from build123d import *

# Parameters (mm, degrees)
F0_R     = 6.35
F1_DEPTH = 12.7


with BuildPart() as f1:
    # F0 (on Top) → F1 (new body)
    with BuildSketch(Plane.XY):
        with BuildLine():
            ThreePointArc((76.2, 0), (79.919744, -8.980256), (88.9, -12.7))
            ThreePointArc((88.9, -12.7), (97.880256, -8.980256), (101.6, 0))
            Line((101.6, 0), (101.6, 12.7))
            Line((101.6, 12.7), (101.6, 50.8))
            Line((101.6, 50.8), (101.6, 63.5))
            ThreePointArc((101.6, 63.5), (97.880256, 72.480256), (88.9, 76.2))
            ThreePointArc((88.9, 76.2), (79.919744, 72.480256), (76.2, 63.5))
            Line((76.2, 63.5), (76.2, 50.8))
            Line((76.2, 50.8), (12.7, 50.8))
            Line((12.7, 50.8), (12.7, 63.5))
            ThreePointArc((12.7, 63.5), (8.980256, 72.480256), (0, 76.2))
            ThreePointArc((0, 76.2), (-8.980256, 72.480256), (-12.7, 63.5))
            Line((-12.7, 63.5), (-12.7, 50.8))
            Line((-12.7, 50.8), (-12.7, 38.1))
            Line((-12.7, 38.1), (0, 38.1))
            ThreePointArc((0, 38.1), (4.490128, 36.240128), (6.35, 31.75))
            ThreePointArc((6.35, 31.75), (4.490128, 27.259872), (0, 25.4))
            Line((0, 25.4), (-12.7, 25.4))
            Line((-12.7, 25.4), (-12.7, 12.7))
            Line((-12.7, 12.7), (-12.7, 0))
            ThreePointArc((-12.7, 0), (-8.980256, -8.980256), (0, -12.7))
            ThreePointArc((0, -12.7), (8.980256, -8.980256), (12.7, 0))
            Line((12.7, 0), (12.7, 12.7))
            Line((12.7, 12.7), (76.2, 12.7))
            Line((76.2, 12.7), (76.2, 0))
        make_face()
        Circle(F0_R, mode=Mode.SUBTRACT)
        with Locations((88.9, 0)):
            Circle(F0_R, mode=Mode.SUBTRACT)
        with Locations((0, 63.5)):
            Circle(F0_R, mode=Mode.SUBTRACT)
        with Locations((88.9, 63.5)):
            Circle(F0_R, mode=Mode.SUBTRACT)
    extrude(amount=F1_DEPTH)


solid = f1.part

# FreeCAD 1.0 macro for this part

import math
import FreeCAD as App
import Part
import Sketcher
from FreeCAD import Vector
Q = App.Units.Quantity

doc = App.newDocument("Part")
body = doc.addObject("PartDesign::Body", "Body")

sketch1 = doc.addObject("Sketcher::SketchObject", "Sketch")
body.addObject(sketch1)
sketch1.AttachmentSupport = (doc.XY_Plane, [""])
sketch1.MapMode = "FlatFace"
sketch1.addGeometry([
    Part.ArcOfCircle(Part.Circle(Vector(89, 0, 0), Vector(0, 0, 1), 13), math.radians(-180), math.radians(-90)),
    Part.ArcOfCircle(Part.Circle(Vector(89, 0, 0), Vector(0, 0, 1), 13), math.radians(-90), math.radians(0)),
    Part.LineSegment(Vector(102, 0, 0), Vector(102, 64, 0)),
    Part.ArcOfCircle(Part.Circle(Vector(89, 63, 0), Vector(0, 0, 1), 13), math.radians(0), math.radians(90)),
    Part.ArcOfCircle(Part.Circle(Vector(89, 63, 0), Vector(0, 0, 1), 13), math.radians(90), math.radians(180)),
    Part.LineSegment(Vector(76, 64, 0), Vector(76, 51, 0)),
    Part.LineSegment(Vector(76, 51, 0), Vector(13, 51, 0)),
    Part.LineSegment(Vector(13, 51, 0), Vector(13, 64, 0)),
    Part.ArcOfCircle(Part.Circle(Vector(0, 63, 0), Vector(0, 0, 1), 13), math.radians(0), math.radians(90)),
    Part.ArcOfCircle(Part.Circle(Vector(0, 63, 0), Vector(0, 0, 1), 13), math.radians(90), math.radians(180)),
    Part.LineSegment(Vector(-13, 64, 0), Vector(-13, 38, 0)),
    Part.LineSegment(Vector(-13, 38, 0), Vector(0, 38, 0)),
    Part.ArcOfCircle(Part.Circle(Vector(0, 32, 0), Vector(0, 0, 1), 6), math.radians(0), math.radians(90)),
    Part.ArcOfCircle(Part.Circle(Vector(0, 32, 0), Vector(0, 0, 1), 6), math.radians(-90), math.radians(0)),
    Part.LineSegment(Vector(0, 25, 0), Vector(-13, 25, 0)),
    Part.LineSegment(Vector(-13, 25, 0), Vector(-13, 0, 0)),
    Part.ArcOfCircle(Part.Circle(Vector(0, 0, 0), Vector(0, 0, 1), 13), math.radians(-180), math.radians(-90)),
    Part.ArcOfCircle(Part.Circle(Vector(0, 0, 0), Vector(0, 0, 1), 13), math.radians(-90), math.radians(0)),
    Part.LineSegment(Vector(13, 0, 0), Vector(13, 13, 0)),
    Part.LineSegment(Vector(13, 13, 0), Vector(76, 13, 0)),
    Part.LineSegment(Vector(76, 13, 0), Vector(76, 0, 0)),
    Part.Circle(Vector(0, 0, 0), Vector(0, 0, 1), 6),
    Part.Circle(Vector(89, 0, 0), Vector(0, 0, 1), 6),
    Part.Circle(Vector(0, 64, 0), Vector(0, 0, 1), 6),
    Part.Circle(Vector(89, 64, 0), Vector(0, 0, 1), 6),
], False)
sketch1.addConstraint([
    Sketcher.Constraint("Tangent", 0, 2, 1, 1),
    Sketcher.Constraint("Tangent", 1, 2, 2, 1),
    Sketcher.Constraint("Tangent", 2, 2, 3, 1),
    Sketcher.Constraint("Tangent", 3, 2, 4, 1),
    Sketcher.Constraint("Tangent", 4, 2, 5, 1),
    Sketcher.Constraint("Coincident", 5, 2, 6, 1),
    Sketcher.Constraint("Coincident", 6, 2, 7, 1),
    Sketcher.Constraint("Tangent", 7, 2, 8, 1),
    Sketcher.Constraint("Tangent", 8, 2, 9, 1),
    Sketcher.Constraint("Tangent", 9, 2, 10, 1),
    Sketcher.Constraint("Coincident", 10, 2, 11, 1),
    Sketcher.Constraint("Tangent", 11, 2, 12, 2),
    Sketcher.Constraint("Tangent", 12, 1, 13, 2),
    Sketcher.Constraint("Tangent", 13, 1, 14, 1),
    Sketcher.Constraint("Coincident", 14, 2, 15, 1),
    Sketcher.Constraint("Tangent", 15, 2, 16, 1),
    Sketcher.Constraint("Tangent", 16, 2, 17, 1),
    Sketcher.Constraint("Tangent", 17, 2, 18, 1),
    Sketcher.Constraint("Coincident", 18, 2, 19, 1),
    Sketcher.Constraint("Coincident", 19, 2, 20, 1),
    Sketcher.Constraint("Tangent", 20, 2, 0, 1),
    Sketcher.Constraint("Vertical", 2),
    Sketcher.Constraint("Vertical", 5),
    Sketcher.Constraint("Horizontal", 6),
    Sketcher.Constraint("Vertical", 7),
    Sketcher.Constraint("Vertical", 10),
    Sketcher.Constraint("Horizontal", 11),
    Sketcher.Constraint("Horizontal", 14),
    Sketcher.Constraint("Vertical", 15),
    Sketcher.Constraint("Vertical", 18),
    Sketcher.Constraint("Horizontal", 19),
    Sketcher.Constraint("Vertical", 20),
    Sketcher.Constraint("Coincident", 16, 3, -1, 1),
    Sketcher.Constraint("Coincident", 21, 3, -1, 1),
    Sketcher.Constraint("Coincident", 22, 3, 0, 3),
    Sketcher.Constraint("Coincident", 23, 3, 8, 3),
    Sketcher.Constraint("Coincident", 24, 3, 3, 3),
    Sketcher.Constraint("Equal", 0, 1),
    Sketcher.Constraint("Equal", 1, 3),
    Sketcher.Constraint("Equal", 3, 4),
    Sketcher.Constraint("Equal", 4, 8),
    Sketcher.Constraint("Equal", 8, 9),
    Sketcher.Constraint("Equal", 12, 13),
    Sketcher.Constraint("Equal", 9, 16),
    Sketcher.Constraint("Equal", 16, 17),
    Sketcher.Constraint("Equal", 13, 21),
    Sketcher.Constraint("Equal", 21, 22),
    Sketcher.Constraint("Equal", 22, 23),
    Sketcher.Constraint("Equal", 23, 24),
    Sketcher.Constraint("PointOnObject", 0, 3, -1),
    Sketcher.Constraint("PointOnObject", 8, 3, -2),
    Sketcher.Constraint("PointOnObject", 12, 3, -2),
    Sketcher.Constraint("PointOnObject", 8, 2, -2),
    Sketcher.Constraint("PointOnObject", 16, 2, -2),
    Sketcher.Constraint("Horizontal", 4, 3, 8, 3),
    Sketcher.Constraint("Horizontal", 13, 3, 12, 1),
    Sketcher.Constraint("Vertical", 24, 3, 0, 2),
    Sketcher.Constraint("Vertical", 0, 2, 3, 2),
    Sketcher.Constraint("Equal", 19, 2),
    Sketcher.Constraint("Equal", 14, 5),
    Sketcher.Constraint("Equal", 10, 15),
    Sketcher.Constraint("Equal", 7, 18),
    Sketcher.Constraint("Diameter", 21, Q("0.5 in")),
    Sketcher.Constraint("Radius", 0, Q("0.5 in")),
    Sketcher.Constraint("DistanceY", 10, 2, 10, 1, Q("1 in")),
])
pad1 = doc.addObject("PartDesign::Pad", "Pad")
body.addObject(pad1)
pad1.Profile = sketch1
pad1.Length = Q("0.5 in")

doc.recompute()
